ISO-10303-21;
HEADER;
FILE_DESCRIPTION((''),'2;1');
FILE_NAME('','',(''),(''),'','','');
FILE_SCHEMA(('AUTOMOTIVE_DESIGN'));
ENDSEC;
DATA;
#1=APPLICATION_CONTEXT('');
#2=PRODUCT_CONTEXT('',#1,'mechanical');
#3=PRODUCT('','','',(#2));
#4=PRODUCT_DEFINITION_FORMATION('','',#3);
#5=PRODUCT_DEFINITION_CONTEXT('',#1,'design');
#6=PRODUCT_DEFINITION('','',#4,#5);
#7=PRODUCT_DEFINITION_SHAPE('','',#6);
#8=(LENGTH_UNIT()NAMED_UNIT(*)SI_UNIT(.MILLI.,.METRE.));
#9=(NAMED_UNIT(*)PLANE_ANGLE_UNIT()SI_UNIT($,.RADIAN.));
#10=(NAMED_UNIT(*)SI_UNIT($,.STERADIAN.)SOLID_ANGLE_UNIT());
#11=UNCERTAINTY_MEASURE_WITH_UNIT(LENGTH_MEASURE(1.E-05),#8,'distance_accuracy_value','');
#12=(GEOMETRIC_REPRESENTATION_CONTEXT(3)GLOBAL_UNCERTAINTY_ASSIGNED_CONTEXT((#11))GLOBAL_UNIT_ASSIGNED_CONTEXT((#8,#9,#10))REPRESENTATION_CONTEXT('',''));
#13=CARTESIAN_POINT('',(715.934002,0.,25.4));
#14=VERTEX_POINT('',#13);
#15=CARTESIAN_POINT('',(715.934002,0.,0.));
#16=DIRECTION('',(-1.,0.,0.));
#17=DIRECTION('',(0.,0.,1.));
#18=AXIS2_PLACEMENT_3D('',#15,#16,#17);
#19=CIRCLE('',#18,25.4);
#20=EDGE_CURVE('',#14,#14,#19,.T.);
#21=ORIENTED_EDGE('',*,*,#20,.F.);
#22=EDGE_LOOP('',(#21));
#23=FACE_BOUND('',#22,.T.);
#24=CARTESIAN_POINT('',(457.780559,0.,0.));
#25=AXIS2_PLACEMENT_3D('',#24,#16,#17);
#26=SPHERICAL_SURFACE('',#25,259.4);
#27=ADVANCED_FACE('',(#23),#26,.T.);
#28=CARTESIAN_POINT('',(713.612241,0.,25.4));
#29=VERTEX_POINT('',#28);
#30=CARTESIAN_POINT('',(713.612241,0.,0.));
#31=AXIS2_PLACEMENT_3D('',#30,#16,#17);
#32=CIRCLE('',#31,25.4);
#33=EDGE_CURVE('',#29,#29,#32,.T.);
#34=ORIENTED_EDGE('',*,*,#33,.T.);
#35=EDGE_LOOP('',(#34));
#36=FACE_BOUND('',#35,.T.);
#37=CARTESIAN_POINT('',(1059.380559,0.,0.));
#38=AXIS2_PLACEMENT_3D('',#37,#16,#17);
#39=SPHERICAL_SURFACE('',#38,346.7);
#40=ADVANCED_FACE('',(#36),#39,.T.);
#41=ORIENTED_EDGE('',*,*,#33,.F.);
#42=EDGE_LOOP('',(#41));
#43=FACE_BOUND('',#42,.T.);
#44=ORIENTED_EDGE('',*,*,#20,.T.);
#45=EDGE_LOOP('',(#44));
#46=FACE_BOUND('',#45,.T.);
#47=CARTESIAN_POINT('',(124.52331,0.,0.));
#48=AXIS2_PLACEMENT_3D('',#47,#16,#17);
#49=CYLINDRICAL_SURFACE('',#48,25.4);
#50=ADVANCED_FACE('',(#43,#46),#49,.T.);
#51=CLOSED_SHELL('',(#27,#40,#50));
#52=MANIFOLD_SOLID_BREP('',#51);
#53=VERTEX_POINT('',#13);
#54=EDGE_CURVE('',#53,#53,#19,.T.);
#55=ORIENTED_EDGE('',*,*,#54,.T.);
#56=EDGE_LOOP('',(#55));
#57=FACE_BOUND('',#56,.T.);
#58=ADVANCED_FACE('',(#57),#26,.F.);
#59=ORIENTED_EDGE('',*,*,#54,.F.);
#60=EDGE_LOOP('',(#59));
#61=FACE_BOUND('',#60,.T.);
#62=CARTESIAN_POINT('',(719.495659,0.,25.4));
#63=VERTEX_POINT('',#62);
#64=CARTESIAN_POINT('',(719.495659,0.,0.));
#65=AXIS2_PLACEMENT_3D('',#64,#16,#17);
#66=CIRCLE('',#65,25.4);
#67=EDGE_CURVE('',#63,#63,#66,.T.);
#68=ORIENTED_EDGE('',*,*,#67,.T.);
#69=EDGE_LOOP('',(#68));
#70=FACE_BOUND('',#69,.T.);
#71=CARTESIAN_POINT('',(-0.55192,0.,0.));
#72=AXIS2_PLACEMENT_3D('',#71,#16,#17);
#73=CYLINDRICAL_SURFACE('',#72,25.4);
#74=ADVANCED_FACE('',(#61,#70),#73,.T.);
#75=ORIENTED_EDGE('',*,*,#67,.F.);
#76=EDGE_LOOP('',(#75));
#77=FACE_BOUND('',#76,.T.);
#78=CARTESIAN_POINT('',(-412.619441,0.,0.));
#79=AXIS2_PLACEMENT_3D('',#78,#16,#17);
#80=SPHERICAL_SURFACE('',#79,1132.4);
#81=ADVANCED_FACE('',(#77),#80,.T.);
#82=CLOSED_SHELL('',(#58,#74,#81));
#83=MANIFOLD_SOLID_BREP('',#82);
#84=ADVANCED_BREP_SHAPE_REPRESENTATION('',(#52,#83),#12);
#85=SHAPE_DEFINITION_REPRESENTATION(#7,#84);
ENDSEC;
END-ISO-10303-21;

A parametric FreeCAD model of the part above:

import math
import FreeCAD as App
import Part
import Sketcher

V = App.Vector

doc = App.newDocument("Part")
params = doc.addObject("Spreadsheet::Sheet", "Params")
for row, (alias, value) in enumerate([
    ("sketch1_radius", "346.7 mm"),
    ("sketch1_radius2", "259.4 mm"),
    ("sketch1_width", "4.5 mm"),
    ("revolution_angle", "360 deg"),
    ("sketch2_radius", "259.4 mm"),
    ("sketch2_radius2", "1132.400001 mm"),
    ("sketch2_width", "2.6 mm"),
    ("revolution2_angle", "360 deg"),
], start=1):
    params.set(f"A{row}", alias)
    params.set(f"B{row}", "=" + value)
    params.setAlias(f"B{row}", alias)

body = doc.addObject("PartDesign::Body", "Body")

sketch1 = doc.addObject("Sketcher::SketchObject", "Sketch")
body.addObject(sketch1)
sketch1.AttachmentSupport = (doc.XZ_Plane, [""])
sketch1.MapMode = "FlatFace"
sketch1.addGeometry(Part.ArcOfCircle(Part.Circle(V(1059.4, 0, 0), V(0, 0, 1), 346.7), math.radians(-180), math.radians(-175.8)), False)
sketch1.addGeometry(Part.LineSegment(V(712.7, 0, 0), V(717.2, 0, 0)), False)
sketch1.addGeometry(Part.ArcOfCircle(Part.Circle(V(457.8, 0, 0), V(0, 0, 1), 259.4), math.radians(-5.62), math.radians(0)), False)
sketch1.addGeometry(Part.LineSegment(V(715.9, -25.4, 0), V(713.6, -25.4, 0)), False)
sketch1.addConstraint(Sketcher.Constraint("Coincident", 0, 1, 1, 1))
sketch1.addConstraint(Sketcher.Constraint("Coincident", 1, 2, 2, 2))
sketch1.addConstraint(Sketcher.Constraint("Coincident", 2, 1, 3, 1))
sketch1.addConstraint(Sketcher.Constraint("Coincident", 3, 2, 0, 2))
sketch1.addConstraint(Sketcher.Constraint("Horizontal", 1))
sketch1.addConstraint(Sketcher.Constraint("Horizontal", 3))
sketch1.addConstraint(Sketcher.Constraint("PointOnObject", 0, 3, -1))
sketch1.addConstraint(Sketcher.Constraint("PointOnObject", 2, 3, -1))
sketch1.addConstraint(Sketcher.Constraint("PointOnObject", 0, 1, -1))
sketch1.addConstraint(Sketcher.Constraint("Radius", 0, 346.7))
sketch1.addConstraint(Sketcher.Constraint("Radius", 2, 259.4))
sketch1.addConstraint(Sketcher.Constraint("DistanceX", 1, 1, 1, 2, 4.5))
sketch1.addConstraint(Sketcher.Constraint("DistanceY", 2, 1, -1, 1, 25.4))
sketch1.addConstraint(Sketcher.Constraint("DistanceX", -1, 1, 0, 3, 1059.38056))
sketch1.setExpression("Constraints[9]", "Params.sketch1_radius")
sketch1.setExpression("Constraints[10]", "Params.sketch1_radius2")
sketch1.setExpression("Constraints[11]", "Params.sketch1_width")
revolution = doc.addObject("PartDesign::Revolution", "Revolution")
body.addObject(revolution)
revolution.Profile = sketch1
revolution.ReferenceAxis = (sketch1, ["H_Axis"])
revolution.setExpression("Angle", "Params.revolution_angle")
body2 = doc.addObject("PartDesign::Body", "Body001")

sketch2 = doc.addObject("Sketcher::SketchObject", "Sketch001")
body2.addObject(sketch2)
sketch2.AttachmentSupport = (doc.getObject("XZ_Plane001"), [""])
sketch2.MapMode = "FlatFace"
sketch2.addGeometry(Part.LineSegment(V(719.5, -25.4, 0), V(715.9, -25.4, 0)), False)
sketch2.addGeometry(Part.ArcOfCircle(Part.Circle(V(457.8, 0, 0), V(0, 0, 1), 259.4), math.radians(-5.62), math.radians(0)), False)
sketch2.addGeometry(Part.LineSegment(V(717.2, 0, 0), V(719.8, 0, 0)), False)
sketch2.addGeometry(Part.ArcOfCircle(Part.Circle(V(-412.6, 0, 0), V(0, 0, 1), 1132.4), math.radians(-1.29), math.radians(0)), False)
sketch2.addConstraint(Sketcher.Constraint("Coincident", 0, 2, 1, 1))
sketch2.addConstraint(Sketcher.Constraint("Coincident", 1, 2, 2, 1))
sketch2.addConstraint(Sketcher.Constraint("Coincident", 2, 2, 3, 2))
sketch2.addConstraint(Sketcher.Constraint("Coincident", 3, 1, 0, 1))
sketch2.addConstraint(Sketcher.Constraint("Horizontal", 0))
sketch2.addConstraint(Sketcher.Constraint("Horizontal", 2))
sketch2.addConstraint(Sketcher.Constraint("PointOnObject", 1, 3, -1))
sketch2.addConstraint(Sketcher.Constraint("PointOnObject", 3, 3, -1))
sketch2.addConstraint(Sketcher.Constraint("PointOnObject", 1, 2, -1))
sketch2.addConstraint(Sketcher.Constraint("Radius", 1, 259.4))
sketch2.addConstraint(Sketcher.Constraint("Radius", 3, 1132.400001))
sketch2.addConstraint(Sketcher.Constraint("DistanceX", 2, 1, 2, 2, 2.6))
sketch2.addConstraint(Sketcher.Constraint("DistanceY", 0, 2, -1, 1, 25.4))
sketch2.addConstraint(Sketcher.Constraint("DistanceX", -1, 1, 1, 3, 457.780559))
sketch2.setExpression("Constraints[9]", "Params.sketch2_radius")
sketch2.setExpression("Constraints[10]", "Params.sketch2_radius2")
sketch2.setExpression("Constraints[11]", "Params.sketch2_width")
revolution2 = doc.addObject("PartDesign::Revolution", "Revolution001")
body2.addObject(revolution2)
revolution2.Profile = sketch2
revolution2.ReferenceAxis = (sketch2, ["H_Axis"])
revolution2.setExpression("Angle", "Params.revolution2_angle")

doc.recompute()
